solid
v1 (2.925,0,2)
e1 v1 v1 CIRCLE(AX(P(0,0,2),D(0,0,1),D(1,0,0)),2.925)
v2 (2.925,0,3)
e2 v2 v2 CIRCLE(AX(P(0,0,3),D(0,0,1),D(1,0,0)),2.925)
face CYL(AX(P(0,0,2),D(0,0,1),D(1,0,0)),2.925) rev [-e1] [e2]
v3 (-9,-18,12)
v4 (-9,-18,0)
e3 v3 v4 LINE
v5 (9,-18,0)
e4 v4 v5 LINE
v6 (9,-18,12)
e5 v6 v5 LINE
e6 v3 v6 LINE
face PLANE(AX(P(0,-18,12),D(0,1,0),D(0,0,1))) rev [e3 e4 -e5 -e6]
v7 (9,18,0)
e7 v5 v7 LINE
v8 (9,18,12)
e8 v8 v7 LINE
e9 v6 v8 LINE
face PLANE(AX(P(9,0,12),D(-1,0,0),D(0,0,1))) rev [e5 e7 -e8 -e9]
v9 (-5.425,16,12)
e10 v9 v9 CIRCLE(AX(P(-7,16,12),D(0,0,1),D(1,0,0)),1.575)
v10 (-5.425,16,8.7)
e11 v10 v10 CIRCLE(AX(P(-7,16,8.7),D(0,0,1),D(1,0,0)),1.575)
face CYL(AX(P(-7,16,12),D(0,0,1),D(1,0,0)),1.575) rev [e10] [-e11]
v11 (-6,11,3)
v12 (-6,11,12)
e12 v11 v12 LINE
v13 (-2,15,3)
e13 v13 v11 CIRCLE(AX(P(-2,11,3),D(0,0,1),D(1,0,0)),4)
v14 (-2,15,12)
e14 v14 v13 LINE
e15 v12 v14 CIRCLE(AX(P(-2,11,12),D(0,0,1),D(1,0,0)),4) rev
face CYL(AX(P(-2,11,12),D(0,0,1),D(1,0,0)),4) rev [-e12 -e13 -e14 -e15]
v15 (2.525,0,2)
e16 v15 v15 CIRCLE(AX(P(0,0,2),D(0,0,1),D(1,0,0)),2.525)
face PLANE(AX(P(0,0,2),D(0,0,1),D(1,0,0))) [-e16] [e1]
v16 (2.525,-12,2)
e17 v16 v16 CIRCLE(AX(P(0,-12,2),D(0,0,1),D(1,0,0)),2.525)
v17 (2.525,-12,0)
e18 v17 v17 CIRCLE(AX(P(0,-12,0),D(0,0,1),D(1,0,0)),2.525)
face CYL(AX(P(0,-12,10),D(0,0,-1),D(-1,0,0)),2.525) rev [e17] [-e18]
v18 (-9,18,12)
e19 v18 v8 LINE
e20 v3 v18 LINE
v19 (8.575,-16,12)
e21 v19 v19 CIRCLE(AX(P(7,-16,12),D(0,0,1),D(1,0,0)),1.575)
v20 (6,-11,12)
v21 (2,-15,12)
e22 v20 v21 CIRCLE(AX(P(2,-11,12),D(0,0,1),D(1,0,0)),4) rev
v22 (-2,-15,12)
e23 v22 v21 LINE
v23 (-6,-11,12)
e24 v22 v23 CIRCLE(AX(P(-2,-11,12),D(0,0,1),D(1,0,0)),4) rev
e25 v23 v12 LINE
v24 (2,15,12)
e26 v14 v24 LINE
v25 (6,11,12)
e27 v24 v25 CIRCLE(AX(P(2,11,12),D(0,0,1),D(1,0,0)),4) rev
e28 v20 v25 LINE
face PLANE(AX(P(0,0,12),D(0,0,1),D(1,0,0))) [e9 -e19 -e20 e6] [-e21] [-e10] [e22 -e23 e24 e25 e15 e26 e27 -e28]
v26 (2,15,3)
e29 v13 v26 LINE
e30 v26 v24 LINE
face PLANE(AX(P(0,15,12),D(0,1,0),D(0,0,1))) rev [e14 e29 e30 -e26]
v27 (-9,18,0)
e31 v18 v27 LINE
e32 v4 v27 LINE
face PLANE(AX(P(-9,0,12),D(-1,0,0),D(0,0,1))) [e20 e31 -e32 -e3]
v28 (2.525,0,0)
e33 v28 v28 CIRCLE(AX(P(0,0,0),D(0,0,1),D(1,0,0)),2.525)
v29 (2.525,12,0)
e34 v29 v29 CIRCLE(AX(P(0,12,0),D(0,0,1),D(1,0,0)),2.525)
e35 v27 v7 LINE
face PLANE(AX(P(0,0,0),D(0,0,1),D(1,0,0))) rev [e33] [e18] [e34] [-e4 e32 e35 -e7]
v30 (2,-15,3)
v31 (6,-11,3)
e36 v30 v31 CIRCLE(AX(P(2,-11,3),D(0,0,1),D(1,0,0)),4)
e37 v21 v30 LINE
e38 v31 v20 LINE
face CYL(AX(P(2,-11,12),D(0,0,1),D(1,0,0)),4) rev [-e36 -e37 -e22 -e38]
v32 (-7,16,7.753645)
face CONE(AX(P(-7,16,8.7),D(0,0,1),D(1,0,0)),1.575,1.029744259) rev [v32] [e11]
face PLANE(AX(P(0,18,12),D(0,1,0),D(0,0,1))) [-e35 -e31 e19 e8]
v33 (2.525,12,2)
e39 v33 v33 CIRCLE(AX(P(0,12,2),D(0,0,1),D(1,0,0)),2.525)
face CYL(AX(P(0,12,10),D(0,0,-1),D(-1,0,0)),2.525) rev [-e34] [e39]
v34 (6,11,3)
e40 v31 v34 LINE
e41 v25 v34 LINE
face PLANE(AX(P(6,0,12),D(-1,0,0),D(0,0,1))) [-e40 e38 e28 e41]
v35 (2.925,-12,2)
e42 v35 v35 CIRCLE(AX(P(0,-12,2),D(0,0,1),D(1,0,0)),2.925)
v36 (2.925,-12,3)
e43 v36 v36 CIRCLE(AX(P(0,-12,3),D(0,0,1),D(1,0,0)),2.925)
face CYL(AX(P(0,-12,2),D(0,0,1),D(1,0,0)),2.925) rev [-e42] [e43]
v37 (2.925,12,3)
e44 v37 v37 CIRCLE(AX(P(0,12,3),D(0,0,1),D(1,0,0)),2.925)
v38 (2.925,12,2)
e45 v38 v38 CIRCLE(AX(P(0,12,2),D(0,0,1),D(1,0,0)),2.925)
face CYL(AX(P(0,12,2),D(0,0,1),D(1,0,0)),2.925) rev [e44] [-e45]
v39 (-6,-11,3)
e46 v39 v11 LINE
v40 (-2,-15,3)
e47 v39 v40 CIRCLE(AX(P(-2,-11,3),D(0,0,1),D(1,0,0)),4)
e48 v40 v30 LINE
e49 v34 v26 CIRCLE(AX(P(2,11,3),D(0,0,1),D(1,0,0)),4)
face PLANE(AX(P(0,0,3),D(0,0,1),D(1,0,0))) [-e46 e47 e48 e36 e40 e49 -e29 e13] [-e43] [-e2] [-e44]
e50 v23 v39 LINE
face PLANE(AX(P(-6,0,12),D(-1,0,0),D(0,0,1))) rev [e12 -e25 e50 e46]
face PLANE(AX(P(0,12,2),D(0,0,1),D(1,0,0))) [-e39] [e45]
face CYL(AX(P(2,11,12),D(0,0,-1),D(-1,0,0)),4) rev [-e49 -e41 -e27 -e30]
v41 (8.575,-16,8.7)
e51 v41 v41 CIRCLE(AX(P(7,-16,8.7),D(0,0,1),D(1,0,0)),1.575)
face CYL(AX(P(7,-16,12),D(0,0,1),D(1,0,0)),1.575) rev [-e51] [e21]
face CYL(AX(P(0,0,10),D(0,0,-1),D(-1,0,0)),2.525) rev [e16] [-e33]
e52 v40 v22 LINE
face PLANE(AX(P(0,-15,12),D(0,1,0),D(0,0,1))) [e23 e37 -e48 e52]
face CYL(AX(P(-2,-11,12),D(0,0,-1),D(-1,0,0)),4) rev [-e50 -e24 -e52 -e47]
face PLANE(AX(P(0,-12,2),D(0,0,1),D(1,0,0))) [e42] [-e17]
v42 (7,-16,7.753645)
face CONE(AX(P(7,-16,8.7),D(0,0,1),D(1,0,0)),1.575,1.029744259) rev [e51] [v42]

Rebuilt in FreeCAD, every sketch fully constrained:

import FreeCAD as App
import Part
import Sketcher
from FreeCAD import Vector


def edges_at(feature, points):
    """Names of the edges that pass closest to the given points."""
    edges = feature.Shape.Edges
    near = lambda p: min(range(len(edges)), key=lambda i: edges[i].distToShape(Part.Vertex(*p))[0])
    return sorted({f"Edge{near(p) + 1}" for p in points})


def faces_at(feature, points):
    """Names of the faces that lie closest to the given points."""
    faces = feature.Shape.Faces
    near = lambda p: min(range(len(faces)), key=lambda i: faces[i].distToShape(Part.Vertex(*p))[0])
    return sorted({f"Face{near(p) + 1}" for p in points})

doc = App.newDocument("Part")
body = doc.addObject("PartDesign::Body", "Body")

sketch1 = doc.addObject("Sketcher::SketchObject", "Sketch")
body.addObject(sketch1)
sketch1.AttachmentSupport = (doc.XY_Plane, [""])
sketch1.MapMode = "FlatFace"
sketch1.addGeometry([
    Part.LineSegment(Vector(-9, 18, 0), Vector(-9, -18, 0)),
    Part.LineSegment(Vector(-9, -18, 0), Vector(9, -18, 0)),
    Part.LineSegment(Vector(9, -18, 0), Vector(9, 18, 0)),
    Part.LineSegment(Vector(9, 18, 0), Vector(-9, 18, 0)),
], False)
sketch1.addConstraint([
    Sketcher.Constraint("Coincident", 0, 2, 1, 1),
    Sketcher.Constraint("Coincident", 1, 2, 2, 1),
    Sketcher.Constraint("Coincident", 2, 2, 3, 1),
    Sketcher.Constraint("Coincident", 3, 2, 0, 1),
    Sketcher.Constraint("Vertical", 0),
    Sketcher.Constraint("Horizontal", 1),
    Sketcher.Constraint("Vertical", 2),
    Sketcher.Constraint("Horizontal", 3),
    Sketcher.Constraint("Symmetric", 0, 2, 2, 2, -1, 1),
    Sketcher.Constraint("DistanceX", 1, 1, 1, 2, 18.0),
    Sketcher.Constraint("DistanceY", 0, 2, 0, 1, 36.0),
])
pad1 = doc.addObject("PartDesign::Pad", "Pad")
body.addObject(pad1)
pad1.Profile = sketch1
pad1.Length = 12
doc.recompute()

thickness = doc.addObject("PartDesign::Thickness", "Thickness")
body.addObject(thickness)
thickness.Base = (pad1, faces_at(pad1, [(0, 0, 12)]))
thickness.Value = 3
thickness.Reversed = True
thickness.Join = "Intersection"

sketch2 = doc.addObject("Sketcher::SketchObject", "Sketch001")
body.addObject(sketch2)
sketch2.AttachmentSupport = (doc.XY_Plane, [""])
sketch2.MapMode = "FlatFace"
sketch2.addGeometry([
    Part.Circle(Vector(0, 12, 0), Vector(0, 0, 1), 2.5),
    Part.Circle(Vector(0, 0, 0), Vector(0, 0, 1), 2.5),
    Part.Circle(Vector(0, -12, 0), Vector(0, 0, 1), 2.5),
], False)
sketch2.addConstraint([
    Sketcher.Constraint("Coincident", 1, 3, -1, 1),
    Sketcher.Constraint("Equal", 0, 1),
    Sketcher.Constraint("Equal", 1, 2),
    Sketcher.Constraint("Symmetric", 0, 3, 2, 3, -1, 1),
    Sketcher.Constraint("PointOnObject", 0, 3, -2),
    Sketcher.Constraint("Diameter", 0, 5.05),
    Sketcher.Constraint("DistanceY", -1, 1, 0, 3, 12.0),
])
pocket1 = doc.addObject("PartDesign::Pocket", "Pocket")
body.addObject(pocket1)
pocket1.Profile = sketch2
pocket1.Length = 10
pocket1.Reversed = True

sketch3 = doc.addObject("Sketcher::SketchObject", "Sketch002")
body.addObject(sketch3)
sketch3.AttachmentSupport = (doc.XY_Plane, [""])
sketch3.MapMode = "FlatFace"
sketch3.AttachmentOffset = App.Placement(Vector(0, 0, 3), App.Rotation())
sketch3.addGeometry([
    Part.Circle(Vector(0, 12, 0), Vector(0, 0, 1), 2.9),
    Part.Circle(Vector(0, 0, 0), Vector(0, 0, 1), 2.9),
    Part.Circle(Vector(0, -12, 0), Vector(0, 0, 1), 2.9),
], False)
sketch3.addConstraint([
    Sketcher.Constraint("Coincident", 1, 3, -1, 1),
    Sketcher.Constraint("Equal", 0, 1),
    Sketcher.Constraint("Equal", 1, 2),
    Sketcher.Constraint("Symmetric", 0, 3, 2, 3, -1, 1),
    Sketcher.Constraint("PointOnObject", 0, 3, -2),
    Sketcher.Constraint("Diameter", 0, 5.85),
    Sketcher.Constraint("DistanceY", -1, 1, 0, 3, 12.0),
])
pocket2 = doc.addObject("PartDesign::Pocket", "Pocket001")
body.addObject(pocket2)
pocket2.Profile = sketch3
pocket2.Length = 1
doc.recompute()

fillet = doc.addObject("PartDesign::Fillet", "Fillet")
body.addObject(fillet)
fillet.Base = (pocket2, edges_at(pocket2, [
    (-6, -15, 7.5),
    (6, -15, 7.5),
    (6, 15, 7.5),
    (-6, 15, 7.5),
]))
fillet.Radius = 4

sketch4 = doc.addObject("Sketcher::SketchObject", "Sketch003")
body.addObject(sketch4)
sketch4.AttachmentSupport = (doc.XY_Plane, [""])
sketch4.MapMode = "FlatFace"
sketch4.AttachmentOffset = App.Placement(Vector(0, 0, 12), App.Rotation())
sketch4.addGeometry([
    Part.Circle(Vector(7, -16, 0), Vector(0, 0, 1), 1.6),
    Part.Circle(Vector(-7, 16, 0), Vector(0, 0, 1), 1.6),
], False)
sketch4.addConstraint([
    Sketcher.Constraint("Equal", 0, 1),
    Sketcher.Constraint("Symmetric", 0, 3, 1, 3, -1, 1),
    Sketcher.Constraint("Diameter", 0, 3.15),
    Sketcher.Constraint("DistanceX", -1, 1, 0, 3, 7.0),
    Sketcher.Constraint("DistanceY", 0, 3, -1, 1, 16.0),
])
doc.recompute()
hole = doc.addObject("PartDesign::Hole", "Hole")
body.addObject(hole)
hole.Profile = sketch4
hole.ThreadType = "None"
hole.Diameter = 3.15
hole.DepthType = "Dimension"
hole.Depth = 3.3
hole.DrillPoint = "Angled"
hole.DrillPointAngle = 118

doc.recompute()
